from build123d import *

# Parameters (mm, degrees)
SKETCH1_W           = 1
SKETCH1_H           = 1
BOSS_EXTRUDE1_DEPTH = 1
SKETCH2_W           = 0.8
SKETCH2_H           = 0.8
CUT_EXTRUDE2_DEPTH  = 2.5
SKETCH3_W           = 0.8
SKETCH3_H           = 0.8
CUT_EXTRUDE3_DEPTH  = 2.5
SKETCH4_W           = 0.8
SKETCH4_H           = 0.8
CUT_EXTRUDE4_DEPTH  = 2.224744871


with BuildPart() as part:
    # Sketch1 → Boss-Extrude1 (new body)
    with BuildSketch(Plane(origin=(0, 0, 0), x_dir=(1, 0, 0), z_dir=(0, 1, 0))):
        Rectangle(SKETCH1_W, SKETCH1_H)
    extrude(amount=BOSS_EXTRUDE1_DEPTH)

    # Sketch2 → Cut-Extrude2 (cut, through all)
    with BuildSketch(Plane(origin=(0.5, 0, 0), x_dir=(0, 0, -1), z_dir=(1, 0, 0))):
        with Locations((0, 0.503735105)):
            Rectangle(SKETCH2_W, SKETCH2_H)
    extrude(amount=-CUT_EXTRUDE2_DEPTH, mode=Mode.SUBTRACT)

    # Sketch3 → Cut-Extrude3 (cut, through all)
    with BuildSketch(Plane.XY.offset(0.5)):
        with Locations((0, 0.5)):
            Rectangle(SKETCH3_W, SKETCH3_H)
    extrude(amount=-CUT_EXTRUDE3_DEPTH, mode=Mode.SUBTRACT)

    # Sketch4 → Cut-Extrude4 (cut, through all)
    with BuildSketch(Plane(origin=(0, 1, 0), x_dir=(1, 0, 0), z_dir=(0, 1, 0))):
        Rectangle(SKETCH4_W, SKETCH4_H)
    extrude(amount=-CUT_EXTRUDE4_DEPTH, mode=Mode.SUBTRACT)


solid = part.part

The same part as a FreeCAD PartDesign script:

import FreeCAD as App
import Part
import Sketcher
from FreeCAD import Vector
Q = App.Units.Quantity

doc = App.newDocument("Part")
body = doc.addObject("PartDesign::Body", "Body")

sketch1 = body.newObject("Sketcher::SketchObject", "Sketch")
sketch1.AttachmentSupport = (doc.getObject("XZ_Plane"), [""])
sketch1.MapMode = "FlatFace"
sketch1.addGeometry([
    Part.LineSegment(Vector(-0.5, -0.5, 0), Vector(-0.5, 0.5, 0)),
    Part.LineSegment(Vector(-0.5, 0.5, 0), Vector(0.5, 0.5, 0)),
    Part.LineSegment(Vector(0.5, 0.5, 0), Vector(0.5, -0.5, 0)),
    Part.LineSegment(Vector(0.5, -0.5, 0), Vector(-0.5, -0.5, 0)),
], False)
sketch1.addConstraint([
    Sketcher.Constraint("Coincident", 0, 2, 1, 1),
    Sketcher.Constraint("Coincident", 1, 2, 2, 1),
    Sketcher.Constraint("Coincident", 2, 2, 3, 1),
    Sketcher.Constraint("Coincident", 3, 2, 0, 1),
    Sketcher.Constraint("Vertical", 0),
    Sketcher.Constraint("Horizontal", 1),
    Sketcher.Constraint("Vertical", 2),
    Sketcher.Constraint("Horizontal", 3),
    Sketcher.Constraint("Symmetric", 0, 2, 2, 2, -1, 1),
    Sketcher.Constraint("Equal", 3, 0),
    Sketcher.Constraint("DistanceX", 1, 1, 1, 2, Q("1 mm")),
])
pad1 = body.newObject("PartDesign::Pad", "Pad")
pad1.Profile = sketch1
pad1.Length = 1
pad1.Reversed = True

sketch2 = body.newObject("Sketcher::SketchObject", "Sketch001")
sketch2.AttachmentSupport = (doc.getObject("YZ_Plane"), [""])
sketch2.MapMode = "FlatFace"
sketch2.AttachmentOffset = App.Placement(Vector(0, 0, 0.5), App.Rotation())
sketch2.addGeometry([
    Part.LineSegment(Vector(0.9, 0.4, 0), Vector(0.1, 0.4, 0)),
    Part.LineSegment(Vector(0.1, 0.4, 0), Vector(0.1, -0.4, 0)),
    Part.LineSegment(Vector(0.1, -0.4, 0), Vector(0.9, -0.4, 0)),
    Part.LineSegment(Vector(0.9, -0.4, 0), Vector(0.9, 0.4, 0)),
], False)
sketch2.addConstraint([
    Sketcher.Constraint("Coincident", 0, 2, 1, 1),
    Sketcher.Constraint("Coincident", 1, 2, 2, 1),
    Sketcher.Constraint("Coincident", 2, 2, 3, 1),
    Sketcher.Constraint("Coincident", 3, 2, 0, 1),
    Sketcher.Constraint("Horizontal", 0),
    Sketcher.Constraint("Vertical", 1),
    Sketcher.Constraint("Horizontal", 2),
    Sketcher.Constraint("Vertical", 3),
    Sketcher.Constraint("Equal", 2, 1),
    Sketcher.Constraint("DistanceX", 0, 2, 0, 1, Q("0.8 mm")),
    Sketcher.Constraint("DistanceY", -1, 1, 0, 2, Q("0.4 mm")),
    Sketcher.Constraint("DistanceX", -1, 1, 0, 2, Q("0.103735 mm")),
])
pocket1 = body.newObject("PartDesign::Pocket", "Pocket")
pocket1.Profile = sketch2
pocket1.Type = "ThroughAll"

sketch3 = body.newObject("Sketcher::SketchObject", "Sketch002")
sketch3.AttachmentSupport = (doc.getObject("XY_Plane"), [""])
sketch3.MapMode = "FlatFace"
sketch3.AttachmentOffset = App.Placement(Vector(0, 0, 0.5), App.Rotation())
sketch3.addGeometry([
    Part.LineSegment(Vector(-0.4, 0.9, 0), Vector(-0.4, 0.1, 0)),
    Part.LineSegment(Vector(-0.4, 0.1, 0), Vector(0.4, 0.1, 0)),
    Part.LineSegment(Vector(0.4, 0.1, 0), Vector(0.4, 0.9, 0)),
    Part.LineSegment(Vector(0.4, 0.9, 0), Vector(-0.4, 0.9, 0)),
], False)
sketch3.addConstraint([
    Sketcher.Constraint("Coincident", 0, 2, 1, 1),
    Sketcher.Constraint("Coincident", 1, 2, 2, 1),
    Sketcher.Constraint("Coincident", 2, 2, 3, 1),
    Sketcher.Constraint("Coincident", 3, 2, 0, 1),
    Sketcher.Constraint("Vertical", 0),
    Sketcher.Constraint("Horizontal", 1),
    Sketcher.Constraint("Vertical", 2),
    Sketcher.Constraint("Horizontal", 3),
    Sketcher.Constraint("Equal", 3, 0),
    Sketcher.Constraint("DistanceX", 1, 1, 1, 2, Q("0.8 mm")),
    Sketcher.Constraint("DistanceX", 0, 2, -1, 1, Q("0.4 mm")),
    Sketcher.Constraint("DistanceY", -1, 1, 0, 2, Q("0.1 mm")),
])
pocket2 = body.newObject("PartDesign::Pocket", "Pocket001")
pocket2.Profile = sketch3
pocket2.Type = "ThroughAll"

sketch4 = body.newObject("Sketcher::SketchObject", "Sketch003")
sketch4.AttachmentSupport = (doc.getObject("XZ_Plane"), [""])
sketch4.MapMode = "FlatFace"
sketch4.AttachmentOffset = App.Placement(Vector(0, 0, -1), App.Rotation())
sketch4.addGeometry([
    Part.LineSegment(Vector(-0.4, -0.4, 0), Vector(-0.4, 0.4, 0)),
    Part.LineSegment(Vector(-0.4, 0.4, 0), Vector(0.4, 0.4, 0)),
    Part.LineSegment(Vector(0.4, 0.4, 0), Vector(0.4, -0.4, 0)),
    Part.LineSegment(Vector(0.4, -0.4, 0), Vector(-0.4, -0.4, 0)),
], False)
sketch4.addConstraint([
    Sketcher.Constraint("Coincident", 0, 2, 1, 1),
    Sketcher.Constraint("Coincident", 1, 2, 2, 1),
    Sketcher.Constraint("Coincident", 2, 2, 3, 1),
    Sketcher.Constraint("Coincident", 3, 2, 0, 1),
    Sketcher.Constraint("Vertical", 0),
    Sketcher.Constraint("Horizontal", 1),
    Sketcher.Constraint("Vertical", 2),
    Sketcher.Constraint("Horizontal", 3),
    Sketcher.Constraint("Symmetric", 0, 2, 2, 2, -1, 1),
    Sketcher.Constraint("Equal", 3, 0),
    Sketcher.Constraint("DistanceX", 1, 1, 1, 2, Q("0.8 mm")),
])
pocket3 = body.newObject("PartDesign::Pocket", "Pocket002")
pocket3.Profile = sketch4
pocket3.Type = "ThroughAll"
pocket3.Reversed = True

doc.recompute()
